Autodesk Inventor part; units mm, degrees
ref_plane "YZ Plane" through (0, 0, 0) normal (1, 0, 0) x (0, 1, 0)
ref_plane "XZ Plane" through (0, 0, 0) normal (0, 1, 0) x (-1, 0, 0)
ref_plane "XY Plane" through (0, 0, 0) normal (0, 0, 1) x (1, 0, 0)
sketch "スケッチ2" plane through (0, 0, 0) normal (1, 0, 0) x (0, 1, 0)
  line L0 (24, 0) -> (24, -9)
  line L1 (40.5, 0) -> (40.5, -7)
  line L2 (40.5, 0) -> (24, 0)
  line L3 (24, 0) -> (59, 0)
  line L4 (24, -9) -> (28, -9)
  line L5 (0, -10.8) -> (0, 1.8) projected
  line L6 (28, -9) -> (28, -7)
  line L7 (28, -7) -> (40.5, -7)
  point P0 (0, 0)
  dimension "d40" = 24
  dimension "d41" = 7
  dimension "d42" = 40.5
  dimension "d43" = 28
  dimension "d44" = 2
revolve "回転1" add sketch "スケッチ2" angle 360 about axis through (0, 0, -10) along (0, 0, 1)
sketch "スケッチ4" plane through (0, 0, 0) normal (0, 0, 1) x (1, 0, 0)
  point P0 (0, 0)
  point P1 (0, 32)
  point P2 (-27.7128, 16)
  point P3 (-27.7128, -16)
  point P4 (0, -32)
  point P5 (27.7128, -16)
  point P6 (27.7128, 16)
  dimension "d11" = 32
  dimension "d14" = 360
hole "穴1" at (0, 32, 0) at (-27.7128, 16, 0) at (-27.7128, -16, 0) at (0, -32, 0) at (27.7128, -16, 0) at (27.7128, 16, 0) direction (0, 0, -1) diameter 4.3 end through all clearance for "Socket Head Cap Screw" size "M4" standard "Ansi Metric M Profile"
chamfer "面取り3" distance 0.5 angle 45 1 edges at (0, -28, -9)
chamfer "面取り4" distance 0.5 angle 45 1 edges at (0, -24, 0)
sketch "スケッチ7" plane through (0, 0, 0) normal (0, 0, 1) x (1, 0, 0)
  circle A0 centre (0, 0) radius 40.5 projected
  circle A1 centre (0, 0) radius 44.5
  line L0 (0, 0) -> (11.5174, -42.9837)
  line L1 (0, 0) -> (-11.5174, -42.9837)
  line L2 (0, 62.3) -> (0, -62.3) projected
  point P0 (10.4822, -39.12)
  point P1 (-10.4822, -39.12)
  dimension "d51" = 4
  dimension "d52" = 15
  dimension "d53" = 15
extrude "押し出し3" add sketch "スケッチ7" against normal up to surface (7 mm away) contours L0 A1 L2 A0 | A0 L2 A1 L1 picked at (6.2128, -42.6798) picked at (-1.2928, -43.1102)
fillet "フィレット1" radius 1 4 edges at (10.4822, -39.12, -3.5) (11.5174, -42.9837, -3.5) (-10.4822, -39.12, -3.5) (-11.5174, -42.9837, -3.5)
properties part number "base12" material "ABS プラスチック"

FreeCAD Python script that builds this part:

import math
import FreeCAD as App
import Part
import Sketcher
Q = App.Units.Quantity


def edges_at(feature, points):
    """Names of the edges that pass closest to the given points."""
    edges = feature.Shape.Edges
    near = lambda p: min(range(len(edges)), key=lambda i: edges[i].distToShape(Part.Vertex(*p))[0])
    return sorted({f"Edge{near(p) + 1}" for p in points})

doc = App.newDocument("Part")
body = doc.addObject("PartDesign::Body", "Body")

sketch1 = doc.addObject("Sketcher::SketchObject", "Sketch")
body.addObject(sketch1)
sketch1.AttachmentSupport = (doc.YZ_Plane, [""])
sketch1.MapMode = "FlatFace"
sketch1.addGeometry([
    Part.LineSegment(App.Vector(40.5, 0, 0), App.Vector(24, 0, 0)),
    Part.LineSegment(App.Vector(24, 0, 0), App.Vector(24, -9, 0)),
    Part.LineSegment(App.Vector(24, -9, 0), App.Vector(28, -9, 0)),
    Part.LineSegment(App.Vector(28, -9, 0), App.Vector(28, -7, 0)),
    Part.LineSegment(App.Vector(28, -7, 0), App.Vector(40.5, -7, 0)),
    Part.LineSegment(App.Vector(40.5, -7, 0), App.Vector(40.5, 0, 0)),
], False)
sketch1.addConstraint([
    Sketcher.Constraint("Coincident", 0, 2, 1, 1),
    Sketcher.Constraint("Coincident", 1, 2, 2, 1),
    Sketcher.Constraint("Coincident", 2, 2, 3, 1),
    Sketcher.Constraint("Coincident", 3, 2, 4, 1),
    Sketcher.Constraint("Coincident", 4, 2, 5, 1),
    Sketcher.Constraint("Coincident", 5, 2, 0, 1),
    Sketcher.Constraint("Horizontal", 0),
    Sketcher.Constraint("Vertical", 1),
    Sketcher.Constraint("Horizontal", 2),
    Sketcher.Constraint("Vertical", 3),
    Sketcher.Constraint("Horizontal", 4),
    Sketcher.Constraint("Vertical", 5),
    Sketcher.Constraint("PointOnObject", 0, 2, -1),
    Sketcher.Constraint("DistanceY", 3, 1, 3, 2, Q("2 mm")),
    Sketcher.Constraint("DistanceY", 5, 1, 5, 2, Q("7 mm")),
    Sketcher.Constraint("DistanceX", -1, 1, 0, 2, Q("24 mm")),
    Sketcher.Constraint("DistanceX", -1, 1, 2, 2, Q("28 mm")),
    Sketcher.Constraint("DistanceX", -1, 1, 4, 2, Q("40.5 mm")),
])
revolution = doc.addObject("PartDesign::Revolution", "Revolution")
body.addObject(revolution)
revolution.Profile = sketch1
revolution.ReferenceAxis = (sketch1, ["V_Axis"])
revolution.Angle = 360

sketch2 = doc.addObject("Sketcher::SketchObject", "Sketch001")
body.addObject(sketch2)
sketch2.AttachmentSupport = (doc.XY_Plane, [""])
sketch2.MapMode = "FlatFace"
sketch2.addGeometry([
    Part.Circle(App.Vector(0, 32, 0), App.Vector(0, 0, 1), 2.1),
    Part.Circle(App.Vector(-27.7, 16, 0), App.Vector(0, 0, 1), 2.1),
    Part.Circle(App.Vector(-27.7, -16, 0), App.Vector(0, 0, 1), 2.1),
    Part.Circle(App.Vector(0, -32, 0), App.Vector(0, 0, 1), 2.1),
    Part.Circle(App.Vector(27.7, -16, 0), App.Vector(0, 0, 1), 2.1),
    Part.Circle(App.Vector(27.7, 16, 0), App.Vector(0, 0, 1), 2.1),
], False)
sketch2.addConstraint([
    Sketcher.Constraint("Equal", 0, 1),
    Sketcher.Constraint("Equal", 1, 2),
    Sketcher.Constraint("Equal", 2, 3),
    Sketcher.Constraint("Equal", 3, 4),
    Sketcher.Constraint("Equal", 4, 5),
    Sketcher.Constraint("Symmetric", 0, 3, 3, 3, -1, 1),
    Sketcher.Constraint("Symmetric", 1, 3, 4, 3, -1, 1),
    Sketcher.Constraint("Symmetric", 2, 3, 5, 3, -1, 1),
    Sketcher.Constraint("Symmetric", 2, 3, 4, 3, -2),
    Sketcher.Constraint("PointOnObject", 0, 3, -2),
    Sketcher.Constraint("Diameter", 0, Q("4.3 mm")),
    Sketcher.Constraint("DistanceY", -1, 1, 0, 3, Q("32 mm")),
    Sketcher.Constraint("DistanceY", -1, 1, 1, 3, Q("16 mm")),
    Sketcher.Constraint("DistanceX", 1, 3, -1, 1, Q("27.7128 mm")),
])
doc.recompute()
hole = doc.addObject("PartDesign::Hole", "Hole")
body.addObject(hole)
hole.Profile = sketch2
hole.ThreadType = "None"
hole.Diameter = 4.3
hole.DepthType = "ThroughAll"
doc.recompute()

chamfer = doc.addObject("PartDesign::Chamfer", "Chamfer")
body.addObject(chamfer)
chamfer.Base = (hole, edges_at(hole, [(0, -28, -9)]))
chamfer.Size = 0.5
doc.recompute()

chamfer2 = doc.addObject("PartDesign::Chamfer", "Chamfer001")
body.addObject(chamfer2)
chamfer2.Base = (chamfer, edges_at(chamfer, [(0, -24, 0)]))
chamfer2.Size = 0.5

sketch3 = doc.addObject("Sketcher::SketchObject", "Sketch002")
body.addObject(sketch3)
sketch3.AttachmentSupport = (doc.XY_Plane, [""])
sketch3.MapMode = "FlatFace"
sketch3.addGeometry([
    Part.LineSegment(App.Vector(11.5, -43, 0), App.Vector(10.5, -39.1, 0)),
    Part.ArcOfCircle(Part.Circle(App.Vector(0, 0, 0), App.Vector(0, 0, 1), 40.5), math.radians(-105), math.radians(-75)),
    Part.LineSegment(App.Vector(-10.5, -39.1, 0), App.Vector(-11.5, -43, 0)),
    Part.ArcOfCircle(Part.Circle(App.Vector(0, 0, 0), App.Vector(0, 0, 1), 44.5), math.radians(-105), math.radians(-75)),
], False)
sketch3.addConstraint([
    Sketcher.Constraint("Coincident", 0, 2, 1, 2),
    Sketcher.Constraint("Coincident", 1, 1, 2, 1),
    Sketcher.Constraint("Coincident", 2, 2, 3, 1),
    Sketcher.Constraint("Coincident", 3, 2, 0, 1),
    Sketcher.Constraint("Coincident", 1, 3, -1, 1),
    Sketcher.Constraint("Coincident", 3, 3, -1, 1),
    Sketcher.Constraint("Horizontal", 0, 2, 1, 1),
    Sketcher.Constraint("Horizontal", 2, 2, 3, 2),
    Sketcher.Constraint("Distance", 0, Q("4 mm")),
    Sketcher.Constraint("Radius", 1, Q("40.5 mm")),
    Sketcher.Constraint("Angle", 0, Q("105 deg")),
    Sketcher.Constraint("DistanceY", 0, 2, -1, 1, Q("39.12 mm")),
])
pad1 = doc.addObject("PartDesign::Pad", "Pad")
body.addObject(pad1)
pad1.Profile = sketch3
pad1.Length = 7
pad1.Reversed = True
doc.recompute()

fillet = doc.addObject("PartDesign::Fillet", "Fillet")
body.addObject(fillet)
fillet.Base = (pad1, edges_at(pad1, [
    (10.482, -39.12, -3.5),
    (11.517, -42.984, -3.5),
    (-10.482, -39.12, -3.5),
    (-11.517, -42.984, -3.5),
]))
fillet.Radius = 1

doc.recompute()
